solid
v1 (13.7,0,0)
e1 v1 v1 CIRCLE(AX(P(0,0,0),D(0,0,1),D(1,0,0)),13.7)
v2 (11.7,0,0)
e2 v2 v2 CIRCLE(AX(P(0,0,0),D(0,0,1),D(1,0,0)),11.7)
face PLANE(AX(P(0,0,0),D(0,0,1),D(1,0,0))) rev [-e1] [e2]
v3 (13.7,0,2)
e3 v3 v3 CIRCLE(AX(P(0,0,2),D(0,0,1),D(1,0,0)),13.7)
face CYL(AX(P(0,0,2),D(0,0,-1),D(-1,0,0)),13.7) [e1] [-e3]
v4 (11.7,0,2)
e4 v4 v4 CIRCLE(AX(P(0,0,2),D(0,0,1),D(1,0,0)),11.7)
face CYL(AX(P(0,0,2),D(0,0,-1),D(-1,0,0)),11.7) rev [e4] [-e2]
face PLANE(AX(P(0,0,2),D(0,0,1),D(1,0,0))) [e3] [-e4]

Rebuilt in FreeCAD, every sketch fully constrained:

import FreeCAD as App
import Part
import Sketcher

V = App.Vector

doc = App.newDocument("Part")
body = doc.addObject("PartDesign::Body", "Body")

sketch1 = doc.addObject("Sketcher::SketchObject", "Sketch")
body.addObject(sketch1)
sketch1.AttachmentSupport = (doc.XY_Plane, [""])
sketch1.MapMode = "FlatFace"
sketch1.addGeometry([
    Part.Circle(V(0, 0, 0), V(0, 0, 1), 14),
    Part.Circle(V(0, 0, 0), V(0, 0, 1), 12),
], False)
sketch1.addConstraint([
    Sketcher.Constraint("Coincident", 0, 3, -1, 1),
    Sketcher.Constraint("Coincident", 1, 3, -1, 1),
    Sketcher.Constraint("Diameter", 0, 27.4),
    Sketcher.Constraint("Diameter", 1, 23.4),
])
pad1 = doc.addObject("PartDesign::Pad", "Pad")
body.addObject(pad1)
pad1.Profile = sketch1
pad1.Length = 2

doc.recompute()
